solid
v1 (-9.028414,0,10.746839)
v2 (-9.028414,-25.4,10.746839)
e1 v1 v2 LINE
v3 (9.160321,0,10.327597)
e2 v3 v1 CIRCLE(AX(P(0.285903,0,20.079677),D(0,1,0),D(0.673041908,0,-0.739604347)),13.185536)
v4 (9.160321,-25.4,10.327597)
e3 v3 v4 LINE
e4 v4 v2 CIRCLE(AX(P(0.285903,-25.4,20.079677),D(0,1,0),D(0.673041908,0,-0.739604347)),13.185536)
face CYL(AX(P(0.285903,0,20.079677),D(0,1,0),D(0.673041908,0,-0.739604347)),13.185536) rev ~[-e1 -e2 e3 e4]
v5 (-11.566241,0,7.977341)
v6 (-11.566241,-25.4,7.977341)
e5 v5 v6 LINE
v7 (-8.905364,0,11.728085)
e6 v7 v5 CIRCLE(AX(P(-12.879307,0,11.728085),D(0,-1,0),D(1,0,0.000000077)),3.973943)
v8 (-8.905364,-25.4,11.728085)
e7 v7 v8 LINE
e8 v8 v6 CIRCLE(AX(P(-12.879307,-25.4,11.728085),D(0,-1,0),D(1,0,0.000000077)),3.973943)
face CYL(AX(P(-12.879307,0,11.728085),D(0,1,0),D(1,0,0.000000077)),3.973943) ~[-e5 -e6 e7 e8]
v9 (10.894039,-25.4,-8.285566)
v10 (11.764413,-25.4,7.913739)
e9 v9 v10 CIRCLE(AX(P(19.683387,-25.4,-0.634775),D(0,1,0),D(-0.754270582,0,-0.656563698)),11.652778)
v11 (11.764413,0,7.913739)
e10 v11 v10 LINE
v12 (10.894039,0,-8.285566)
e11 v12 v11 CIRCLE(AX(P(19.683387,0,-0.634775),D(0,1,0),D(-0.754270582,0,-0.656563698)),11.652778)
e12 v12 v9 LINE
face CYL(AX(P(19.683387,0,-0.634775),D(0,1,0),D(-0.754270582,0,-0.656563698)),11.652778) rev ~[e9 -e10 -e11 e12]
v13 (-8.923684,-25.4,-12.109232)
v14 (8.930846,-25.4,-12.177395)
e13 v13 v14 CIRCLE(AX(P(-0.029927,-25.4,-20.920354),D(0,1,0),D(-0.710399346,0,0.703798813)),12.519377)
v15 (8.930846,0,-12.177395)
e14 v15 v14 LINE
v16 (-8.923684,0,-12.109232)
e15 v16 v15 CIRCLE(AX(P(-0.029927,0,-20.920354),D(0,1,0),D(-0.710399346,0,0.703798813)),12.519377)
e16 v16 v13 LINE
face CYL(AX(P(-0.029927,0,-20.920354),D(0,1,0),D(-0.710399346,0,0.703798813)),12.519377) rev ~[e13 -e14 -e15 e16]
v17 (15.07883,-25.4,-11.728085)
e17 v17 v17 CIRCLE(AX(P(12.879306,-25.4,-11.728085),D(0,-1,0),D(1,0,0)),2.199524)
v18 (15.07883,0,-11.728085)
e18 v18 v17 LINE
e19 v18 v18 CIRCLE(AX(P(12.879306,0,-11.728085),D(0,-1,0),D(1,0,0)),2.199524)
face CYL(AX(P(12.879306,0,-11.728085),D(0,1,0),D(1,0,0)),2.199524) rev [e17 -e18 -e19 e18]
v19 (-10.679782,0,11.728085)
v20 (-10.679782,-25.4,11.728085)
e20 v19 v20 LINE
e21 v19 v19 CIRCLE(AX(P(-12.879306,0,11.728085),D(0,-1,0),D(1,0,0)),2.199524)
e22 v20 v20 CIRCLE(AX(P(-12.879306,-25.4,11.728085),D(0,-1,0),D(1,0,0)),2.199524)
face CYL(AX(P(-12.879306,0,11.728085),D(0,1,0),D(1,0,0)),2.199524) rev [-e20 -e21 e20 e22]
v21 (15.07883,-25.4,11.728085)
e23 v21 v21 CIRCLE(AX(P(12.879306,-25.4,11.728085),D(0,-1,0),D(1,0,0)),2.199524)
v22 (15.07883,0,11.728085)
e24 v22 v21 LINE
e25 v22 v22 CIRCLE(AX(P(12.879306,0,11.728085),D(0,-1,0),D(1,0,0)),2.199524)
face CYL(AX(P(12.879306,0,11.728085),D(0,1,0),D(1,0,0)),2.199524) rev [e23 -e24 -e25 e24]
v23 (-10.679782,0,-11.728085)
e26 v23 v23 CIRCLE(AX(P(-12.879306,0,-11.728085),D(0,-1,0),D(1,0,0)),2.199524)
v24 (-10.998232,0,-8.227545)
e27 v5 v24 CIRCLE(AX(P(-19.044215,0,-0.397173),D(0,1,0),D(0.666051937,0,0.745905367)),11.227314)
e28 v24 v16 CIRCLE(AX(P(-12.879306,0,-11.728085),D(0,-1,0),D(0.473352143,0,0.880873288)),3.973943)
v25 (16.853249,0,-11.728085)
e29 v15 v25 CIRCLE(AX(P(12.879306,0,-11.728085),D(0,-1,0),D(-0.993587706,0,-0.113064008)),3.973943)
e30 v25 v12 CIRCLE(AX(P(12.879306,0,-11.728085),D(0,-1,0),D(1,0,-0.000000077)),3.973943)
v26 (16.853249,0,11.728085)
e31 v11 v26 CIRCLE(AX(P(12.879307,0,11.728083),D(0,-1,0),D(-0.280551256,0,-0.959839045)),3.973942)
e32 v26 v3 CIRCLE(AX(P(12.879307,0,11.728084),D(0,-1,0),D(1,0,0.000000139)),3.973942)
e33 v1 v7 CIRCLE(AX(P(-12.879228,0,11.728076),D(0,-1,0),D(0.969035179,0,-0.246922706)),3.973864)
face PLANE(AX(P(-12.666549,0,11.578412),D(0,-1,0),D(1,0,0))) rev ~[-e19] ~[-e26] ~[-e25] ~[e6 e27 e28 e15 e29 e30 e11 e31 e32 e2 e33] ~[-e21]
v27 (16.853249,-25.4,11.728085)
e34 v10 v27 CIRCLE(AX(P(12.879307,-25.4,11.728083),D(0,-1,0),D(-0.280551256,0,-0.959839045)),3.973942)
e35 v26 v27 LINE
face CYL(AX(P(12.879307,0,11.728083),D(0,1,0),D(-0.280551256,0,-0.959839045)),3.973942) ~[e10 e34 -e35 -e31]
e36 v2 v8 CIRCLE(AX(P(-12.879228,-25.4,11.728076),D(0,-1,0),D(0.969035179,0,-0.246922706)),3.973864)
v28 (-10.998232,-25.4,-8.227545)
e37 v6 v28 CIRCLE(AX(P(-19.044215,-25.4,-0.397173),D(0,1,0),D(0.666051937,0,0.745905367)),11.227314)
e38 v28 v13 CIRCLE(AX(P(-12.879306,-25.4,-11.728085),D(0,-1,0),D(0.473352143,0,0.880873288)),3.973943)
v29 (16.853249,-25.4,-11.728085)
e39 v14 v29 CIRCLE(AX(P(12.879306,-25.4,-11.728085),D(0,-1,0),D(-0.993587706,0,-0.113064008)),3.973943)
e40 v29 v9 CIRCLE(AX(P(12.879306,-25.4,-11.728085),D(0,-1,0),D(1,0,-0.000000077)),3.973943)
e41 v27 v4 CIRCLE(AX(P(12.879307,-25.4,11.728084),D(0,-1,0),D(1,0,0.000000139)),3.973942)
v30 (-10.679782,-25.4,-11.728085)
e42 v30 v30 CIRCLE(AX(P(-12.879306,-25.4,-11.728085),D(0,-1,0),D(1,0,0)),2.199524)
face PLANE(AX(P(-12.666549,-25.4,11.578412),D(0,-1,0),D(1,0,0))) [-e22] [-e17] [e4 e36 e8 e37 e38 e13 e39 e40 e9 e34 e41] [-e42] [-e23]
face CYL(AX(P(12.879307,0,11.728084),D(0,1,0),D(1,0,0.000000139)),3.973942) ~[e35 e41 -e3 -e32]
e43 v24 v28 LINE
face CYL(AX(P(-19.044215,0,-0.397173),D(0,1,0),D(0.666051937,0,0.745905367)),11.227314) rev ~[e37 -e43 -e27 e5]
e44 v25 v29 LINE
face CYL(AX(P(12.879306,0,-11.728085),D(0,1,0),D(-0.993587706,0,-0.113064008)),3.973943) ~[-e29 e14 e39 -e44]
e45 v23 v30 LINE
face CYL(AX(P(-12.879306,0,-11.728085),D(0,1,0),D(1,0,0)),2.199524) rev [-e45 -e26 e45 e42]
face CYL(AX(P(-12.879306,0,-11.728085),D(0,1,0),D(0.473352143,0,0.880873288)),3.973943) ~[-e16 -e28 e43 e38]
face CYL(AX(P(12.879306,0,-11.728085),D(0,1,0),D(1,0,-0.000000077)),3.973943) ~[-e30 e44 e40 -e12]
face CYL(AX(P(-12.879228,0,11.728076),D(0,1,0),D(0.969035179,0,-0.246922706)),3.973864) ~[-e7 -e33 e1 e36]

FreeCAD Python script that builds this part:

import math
import FreeCAD as App
import Part
import Sketcher

V = App.Vector
Q = App.Units.Quantity

doc = App.newDocument("Part")
body = doc.addObject("PartDesign::Body", "Body")

# Sketch on XZ plane
sketch1 = doc.addObject("Sketcher::SketchObject", "Sketch")
body.addObject(sketch1)
sketch1.AttachmentSupport = (doc.XZ_Plane, [""])
sketch1.MapMode = "FlatFace"
sketch1.addGeometry([
    Part.ArcOfCircle(Part.Circle(V(-12.9, 11.7, 0), V(0, 0, 1), 4), math.radians(0), math.radians(289)),  # 0
    Part.ArcOfCircle(Part.Circle(V(-19, -0.4, 0), V(0, 0, 1), 11.2), math.radians(-44), math.radians(48)),  # 1
    Part.ArcOfCircle(Part.Circle(V(-12.9, -11.7, 0), V(0, 0, 1), 4), math.radians(62), math.radians(354)),  # 2
    Part.ArcOfCircle(Part.Circle(V(0, -20.9, 0), V(0, 0, 1), 12.5), math.radians(44), math.radians(135)),  # 3
    Part.ArcOfCircle(Part.Circle(V(12.9, -11.7, 0), V(0, 0, 1), 4), math.radians(-174), math.radians(0)),  # 4
    Part.ArcOfCircle(Part.Circle(V(12.9, -11.7, 0), V(0, 0, 1), 4), math.radians(0), math.radians(120)),  # 5
    Part.ArcOfCircle(Part.Circle(V(19.7, -0.6, 0), V(0, 0, 1), 11.7), math.radians(133), math.radians(221)),  # 6
    Part.ArcOfCircle(Part.Circle(V(12.9, 11.7, 0), V(0, 0, 1), 4), math.radians(-106), math.radians(0)),  # 7
    Part.ArcOfCircle(Part.Circle(V(12.9, 11.7, 0), V(0, 0, 1), 4), math.radians(0), math.radians(201)),  # 8
    Part.ArcOfCircle(Part.Circle(V(0.3, 20.1, 0), V(0, 0, 1), 13.2), math.radians(-135), math.radians(-48)),  # 9
    Part.ArcOfCircle(Part.Circle(V(-12.9, 11.7, 0), V(0, 0, 1), 4), math.radians(-14.3), math.radians(0)),  # 10
    Part.Circle(V(-12.9, -11.7, 0), V(0, 0, 1), 2.2),  # 11
    Part.Circle(V(12.9, -11.7, 0), V(0, 0, 1), 2.2),  # 12
    Part.Circle(V(-12.9, 11.7, 0), V(0, 0, 1), 2.2),  # 13
    Part.Circle(V(12.9, 11.7, 0), V(0, 0, 1), 2.2),  # 14
], False)
sketch1.addConstraint([
    Sketcher.Constraint("Coincident", 0, 2, 1, 2),
    Sketcher.Constraint("Coincident", 1, 1, 2, 1),
    Sketcher.Constraint("Coincident", 2, 2, 3, 2),
    Sketcher.Constraint("Coincident", 3, 1, 4, 1),
    Sketcher.Constraint("Tangent", 4, 2, 5, 1),
    Sketcher.Constraint("Coincident", 5, 2, 6, 2),
    Sketcher.Constraint("Coincident", 6, 1, 7, 1),
    Sketcher.Constraint("Tangent", 7, 2, 8, 1),
    Sketcher.Constraint("Coincident", 8, 2, 9, 2),
    Sketcher.Constraint("Coincident", 9, 1, 10, 1),
    Sketcher.Constraint("Coincident", 10, 2, 0, 1),
    Sketcher.Constraint("Coincident", 11, 3, 2, 3),
    Sketcher.Constraint("Coincident", 12, 3, 4, 3),
    Sketcher.Constraint("Coincident", 13, 3, 0, 3),
    Sketcher.Constraint("Coincident", 14, 3, 7, 3),
    Sketcher.Constraint("Equal", 0, 2),
    Sketcher.Constraint("Equal", 2, 4),
    Sketcher.Constraint("Equal", 4, 5),
    Sketcher.Constraint("Equal", 5, 7),
    Sketcher.Constraint("Equal", 7, 8),
    Sketcher.Constraint("Equal", 11, 12),
    Sketcher.Constraint("Equal", 12, 13),
    Sketcher.Constraint("Equal", 13, 14),
    Sketcher.Constraint("Symmetric", 0, 3, 4, 3, -1, 1),
    Sketcher.Constraint("Symmetric", 2, 3, 7, 3, -1, 1),
    Sketcher.Constraint("Symmetric", 2, 3, 4, 3, -2),
    Sketcher.Constraint("Horizontal", 12, 3, 4, 2),
    Sketcher.Constraint("Horizontal", 14, 3, 7, 2),
    Sketcher.Constraint("Horizontal", 7, 2, 10, 2),
    Sketcher.Constraint("Radius", 7, 3.973942),
    Sketcher.Constraint("Diameter", 11, 4.399048),
    Sketcher.Constraint("Radius", 1, 11.227314),
    Sketcher.Constraint("Radius", 3, 12.519377),
    Sketcher.Constraint("Radius", 6, 11.652778),
    Sketcher.Constraint("Radius", 9, 13.185536),
    Sketcher.Constraint("Radius", 10, 3.973864),
    Sketcher.Constraint("DistanceY", 10, 3, 9, 3, 8.3516),
    Sketcher.Constraint("DistanceY", 0, 2, 9, 1, 2.769498),
    Sketcher.Constraint("DistanceX", 10, 3, -1, 1, 12.879228),
    Sketcher.Constraint("DistanceX", 0, 2, -1, 1, 11.566241),
    Sketcher.Constraint("DistanceY", -1, 1, 0, 2, 7.977341),
    Sketcher.Constraint("DistanceX", 1, 1, -1, 1, 10.998232),
    Sketcher.Constraint("DistanceX", -1, 1, 5, 2, 10.894039),
    Sketcher.Constraint("DistanceY", -1, 1, 6, 1, 7.913739),
    Sketcher.Constraint("DistanceX", -1, 1, 8, 2, 9.160321),
    Sketcher.Constraint("DistanceX", 2, 3, 3, 3, 12.849379),
    Sketcher.Constraint("DistanceY", 3, 3, 2, 3, 9.192269),
])
pad1 = doc.addObject("PartDesign::Pad", "Pad")
body.addObject(pad1)
pad1.Profile = sketch1
pad1.Length = Q("1 in")

doc.recompute()
